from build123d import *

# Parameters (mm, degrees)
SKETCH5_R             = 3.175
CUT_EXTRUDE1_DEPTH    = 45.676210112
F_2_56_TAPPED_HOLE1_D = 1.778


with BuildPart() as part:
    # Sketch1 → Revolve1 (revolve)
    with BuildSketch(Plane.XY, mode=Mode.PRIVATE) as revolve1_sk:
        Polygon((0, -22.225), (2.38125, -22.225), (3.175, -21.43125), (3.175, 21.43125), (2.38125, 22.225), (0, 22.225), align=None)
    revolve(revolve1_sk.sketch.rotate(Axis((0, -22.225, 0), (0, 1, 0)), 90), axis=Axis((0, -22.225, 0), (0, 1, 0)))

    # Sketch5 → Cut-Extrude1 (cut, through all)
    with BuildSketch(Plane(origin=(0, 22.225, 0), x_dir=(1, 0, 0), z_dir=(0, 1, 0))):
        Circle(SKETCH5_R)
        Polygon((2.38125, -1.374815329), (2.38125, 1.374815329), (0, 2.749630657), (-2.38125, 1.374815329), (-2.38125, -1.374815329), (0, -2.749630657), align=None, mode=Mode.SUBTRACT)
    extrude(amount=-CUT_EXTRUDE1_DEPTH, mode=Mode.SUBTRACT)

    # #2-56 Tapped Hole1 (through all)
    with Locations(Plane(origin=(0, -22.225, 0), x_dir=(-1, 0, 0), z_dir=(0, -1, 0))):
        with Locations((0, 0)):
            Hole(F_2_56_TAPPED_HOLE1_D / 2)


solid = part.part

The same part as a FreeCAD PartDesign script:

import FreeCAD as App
import Part
import Sketcher
from FreeCAD import Vector
Q = App.Units.Quantity


def add_polygon(sketch, points):
    """Adds a closed chain of lines whose ends are joined by coincident constraints."""
    first, n = sketch.GeometryCount, len(points)
    for a, b in zip(points, points[1:] + points[:1]):
        sketch.addGeometry(Part.LineSegment(App.Vector(*a, 0), App.Vector(*b, 0)), False)
    for i in range(n):
        sketch.addConstraint(Sketcher.Constraint("Coincident", first + i, 2, first + (i + 1) % n, 1))

doc = App.newDocument("Part")
params = doc.addObject("Spreadsheet::Sheet", "Params")
for row, (alias, value) in enumerate([
    ("sketch1_height", "1.75 in"),
    ("sketch1_width", "0.09375 in"),
    ("sketch1_height2", "1.6875 in"),
    ("revolution_angle", "360 deg"),
    ("sketch2_diameter", "0.25 in"),
    ("sketch3_diameter", "0.07 in"),
    ("hole_diameter", "0.07 in"),
], start=1):
    params.set(f"A{row}", alias)
    params.set(f"B{row}", "=" + value)
    params.setAlias(f"B{row}", alias)

body = doc.addObject("PartDesign::Body", "Body")

# Sketch on XY plane
sketch1 = doc.addObject("Sketcher::SketchObject", "Sketch")
body.addObject(sketch1)
sketch1.AttachmentSupport = (doc.XY_Plane, [""])
sketch1.MapMode = "FlatFace"
add_polygon(sketch1, [(0, -22.2), (2.4, -22.2), (3.2, -21.4), (3.2, 21.4), (2.4, 22.2), (0, 22.2)])  # lines 0-5
sketch1.addConstraint(Sketcher.Constraint("Horizontal", 0))
sketch1.addConstraint(Sketcher.Constraint("Vertical", 2))
sketch1.addConstraint(Sketcher.Constraint("Horizontal", 4))
sketch1.addConstraint(Sketcher.Constraint("Vertical", 5))
sketch1.addConstraint(Sketcher.Constraint("Symmetric", 4, 2, 5, 2, -1, 1))
sketch1.addConstraint(Sketcher.Constraint("Perpendicular", 1, 3))
sketch1.addConstraint(Sketcher.Constraint("Vertical", 0, 2, 3, 2))
sketch1.addConstraint(Sketcher.Constraint("Equal", 1, 3))
sketch1.addConstraint(Sketcher.Constraint("DistanceY", 5, 2, 5, 1, Q("1.75 in")))
sketch1.addConstraint(Sketcher.Constraint("DistanceX", 0, 1, 0, 2, Q("0.09375 in")))
sketch1.addConstraint(Sketcher.Constraint("DistanceY", 2, 1, 2, 2, Q("1.6875 in")))
sketch1.setExpression("Constraints[14]", "Params.sketch1_height")
sketch1.setExpression("Constraints[15]", "Params.sketch1_width")
sketch1.setExpression("Constraints[16]", "Params.sketch1_height2")
revolution = doc.addObject("PartDesign::Revolution", "Revolution")
body.addObject(revolution)
revolution.Profile = sketch1
revolution.ReferenceAxis = (sketch1, ["V_Axis"])
revolution.setExpression("Angle", "Params.revolution_angle")

# Sketch on XZ plane
sketch2 = doc.addObject("Sketcher::SketchObject", "Sketch001")
body.addObject(sketch2)
sketch2.AttachmentSupport = (doc.XZ_Plane, [""])
sketch2.MapMode = "FlatFace"
sketch2.AttachmentOffset = App.Placement(Vector(0, 0, -0.875 * 25.4), App.Rotation())
sketch2.addGeometry(Part.Circle(Vector(0, 0, 0), Vector(0, 0, 1), 3.2), False)  # 0
add_polygon(sketch2, [(2.4, -1.4), (2.4, 1.4), (0, 2.7), (-2.4, 1.4), (-2.4, -1.4), (0, -2.7)])  # lines 1-6
sketch2.addConstraint(Sketcher.Constraint("Vertical", 1))
sketch2.addConstraint(Sketcher.Constraint("Vertical", 4))
sketch2.addConstraint(Sketcher.Constraint("Coincident", 0, 3, -1, 1))
sketch2.addConstraint(Sketcher.Constraint("Symmetric", 1, 2, 4, 2, -1, 1))
sketch2.addConstraint(Sketcher.Constraint("Symmetric", 2, 2, 5, 2, -1, 1))
sketch2.addConstraint(Sketcher.Constraint("PointOnObject", 2, 2, -2))
sketch2.addConstraint(Sketcher.Constraint("Parallel", 3, 6))
sketch2.addConstraint(Sketcher.Constraint("Horizontal", 1, 2, 3, 2))
sketch2.addConstraint(Sketcher.Constraint("Diameter", 0, Q("0.25 in")))
sketch2.addConstraint(Sketcher.Constraint("Angle", 2, Q("150 deg")))
sketch2.addConstraint(Sketcher.Constraint("DistanceX", -1, 1, 1, 2, Q("0.09375 in")))
sketch2.addConstraint(Sketcher.Constraint("DistanceY", 1, 1, 1, 2, 2.749631))
sketch2.setExpression("Constraints[14]", "Params.sketch2_diameter")
pocket1 = doc.addObject("PartDesign::Pocket", "Pocket")
body.addObject(pocket1)
pocket1.Profile = sketch2
pocket1.Type = "ThroughAll"
pocket1.Reversed = True

# Sketch on XZ plane
sketch3 = doc.addObject("Sketcher::SketchObject", "Sketch002")
body.addObject(sketch3)
sketch3.AttachmentSupport = (doc.XZ_Plane, [""])
sketch3.MapMode = "FlatFace"
sketch3.AttachmentOffset = App.Placement(Vector(0, 0, 0.875 * 25.4), App.Rotation())
sketch3.addGeometry(Part.Circle(Vector(0, 0, 0), Vector(0, 0, 1), 0.9), False)
sketch3.addConstraint(Sketcher.Constraint("Coincident", 0, 3, -1, 1))
sketch3.addConstraint(Sketcher.Constraint("Diameter", 0, Q("0.07 in")))
sketch3.setExpression("Constraints[1]", "Params.sketch3_diameter")
doc.recompute()
hole = doc.addObject("PartDesign::Hole", "Hole")
body.addObject(hole)
hole.Profile = sketch3
hole.ThreadType = "None"
hole.setExpression("Diameter", "Params.hole_diameter")
hole.DepthType = "ThroughAll"

doc.recompute()
